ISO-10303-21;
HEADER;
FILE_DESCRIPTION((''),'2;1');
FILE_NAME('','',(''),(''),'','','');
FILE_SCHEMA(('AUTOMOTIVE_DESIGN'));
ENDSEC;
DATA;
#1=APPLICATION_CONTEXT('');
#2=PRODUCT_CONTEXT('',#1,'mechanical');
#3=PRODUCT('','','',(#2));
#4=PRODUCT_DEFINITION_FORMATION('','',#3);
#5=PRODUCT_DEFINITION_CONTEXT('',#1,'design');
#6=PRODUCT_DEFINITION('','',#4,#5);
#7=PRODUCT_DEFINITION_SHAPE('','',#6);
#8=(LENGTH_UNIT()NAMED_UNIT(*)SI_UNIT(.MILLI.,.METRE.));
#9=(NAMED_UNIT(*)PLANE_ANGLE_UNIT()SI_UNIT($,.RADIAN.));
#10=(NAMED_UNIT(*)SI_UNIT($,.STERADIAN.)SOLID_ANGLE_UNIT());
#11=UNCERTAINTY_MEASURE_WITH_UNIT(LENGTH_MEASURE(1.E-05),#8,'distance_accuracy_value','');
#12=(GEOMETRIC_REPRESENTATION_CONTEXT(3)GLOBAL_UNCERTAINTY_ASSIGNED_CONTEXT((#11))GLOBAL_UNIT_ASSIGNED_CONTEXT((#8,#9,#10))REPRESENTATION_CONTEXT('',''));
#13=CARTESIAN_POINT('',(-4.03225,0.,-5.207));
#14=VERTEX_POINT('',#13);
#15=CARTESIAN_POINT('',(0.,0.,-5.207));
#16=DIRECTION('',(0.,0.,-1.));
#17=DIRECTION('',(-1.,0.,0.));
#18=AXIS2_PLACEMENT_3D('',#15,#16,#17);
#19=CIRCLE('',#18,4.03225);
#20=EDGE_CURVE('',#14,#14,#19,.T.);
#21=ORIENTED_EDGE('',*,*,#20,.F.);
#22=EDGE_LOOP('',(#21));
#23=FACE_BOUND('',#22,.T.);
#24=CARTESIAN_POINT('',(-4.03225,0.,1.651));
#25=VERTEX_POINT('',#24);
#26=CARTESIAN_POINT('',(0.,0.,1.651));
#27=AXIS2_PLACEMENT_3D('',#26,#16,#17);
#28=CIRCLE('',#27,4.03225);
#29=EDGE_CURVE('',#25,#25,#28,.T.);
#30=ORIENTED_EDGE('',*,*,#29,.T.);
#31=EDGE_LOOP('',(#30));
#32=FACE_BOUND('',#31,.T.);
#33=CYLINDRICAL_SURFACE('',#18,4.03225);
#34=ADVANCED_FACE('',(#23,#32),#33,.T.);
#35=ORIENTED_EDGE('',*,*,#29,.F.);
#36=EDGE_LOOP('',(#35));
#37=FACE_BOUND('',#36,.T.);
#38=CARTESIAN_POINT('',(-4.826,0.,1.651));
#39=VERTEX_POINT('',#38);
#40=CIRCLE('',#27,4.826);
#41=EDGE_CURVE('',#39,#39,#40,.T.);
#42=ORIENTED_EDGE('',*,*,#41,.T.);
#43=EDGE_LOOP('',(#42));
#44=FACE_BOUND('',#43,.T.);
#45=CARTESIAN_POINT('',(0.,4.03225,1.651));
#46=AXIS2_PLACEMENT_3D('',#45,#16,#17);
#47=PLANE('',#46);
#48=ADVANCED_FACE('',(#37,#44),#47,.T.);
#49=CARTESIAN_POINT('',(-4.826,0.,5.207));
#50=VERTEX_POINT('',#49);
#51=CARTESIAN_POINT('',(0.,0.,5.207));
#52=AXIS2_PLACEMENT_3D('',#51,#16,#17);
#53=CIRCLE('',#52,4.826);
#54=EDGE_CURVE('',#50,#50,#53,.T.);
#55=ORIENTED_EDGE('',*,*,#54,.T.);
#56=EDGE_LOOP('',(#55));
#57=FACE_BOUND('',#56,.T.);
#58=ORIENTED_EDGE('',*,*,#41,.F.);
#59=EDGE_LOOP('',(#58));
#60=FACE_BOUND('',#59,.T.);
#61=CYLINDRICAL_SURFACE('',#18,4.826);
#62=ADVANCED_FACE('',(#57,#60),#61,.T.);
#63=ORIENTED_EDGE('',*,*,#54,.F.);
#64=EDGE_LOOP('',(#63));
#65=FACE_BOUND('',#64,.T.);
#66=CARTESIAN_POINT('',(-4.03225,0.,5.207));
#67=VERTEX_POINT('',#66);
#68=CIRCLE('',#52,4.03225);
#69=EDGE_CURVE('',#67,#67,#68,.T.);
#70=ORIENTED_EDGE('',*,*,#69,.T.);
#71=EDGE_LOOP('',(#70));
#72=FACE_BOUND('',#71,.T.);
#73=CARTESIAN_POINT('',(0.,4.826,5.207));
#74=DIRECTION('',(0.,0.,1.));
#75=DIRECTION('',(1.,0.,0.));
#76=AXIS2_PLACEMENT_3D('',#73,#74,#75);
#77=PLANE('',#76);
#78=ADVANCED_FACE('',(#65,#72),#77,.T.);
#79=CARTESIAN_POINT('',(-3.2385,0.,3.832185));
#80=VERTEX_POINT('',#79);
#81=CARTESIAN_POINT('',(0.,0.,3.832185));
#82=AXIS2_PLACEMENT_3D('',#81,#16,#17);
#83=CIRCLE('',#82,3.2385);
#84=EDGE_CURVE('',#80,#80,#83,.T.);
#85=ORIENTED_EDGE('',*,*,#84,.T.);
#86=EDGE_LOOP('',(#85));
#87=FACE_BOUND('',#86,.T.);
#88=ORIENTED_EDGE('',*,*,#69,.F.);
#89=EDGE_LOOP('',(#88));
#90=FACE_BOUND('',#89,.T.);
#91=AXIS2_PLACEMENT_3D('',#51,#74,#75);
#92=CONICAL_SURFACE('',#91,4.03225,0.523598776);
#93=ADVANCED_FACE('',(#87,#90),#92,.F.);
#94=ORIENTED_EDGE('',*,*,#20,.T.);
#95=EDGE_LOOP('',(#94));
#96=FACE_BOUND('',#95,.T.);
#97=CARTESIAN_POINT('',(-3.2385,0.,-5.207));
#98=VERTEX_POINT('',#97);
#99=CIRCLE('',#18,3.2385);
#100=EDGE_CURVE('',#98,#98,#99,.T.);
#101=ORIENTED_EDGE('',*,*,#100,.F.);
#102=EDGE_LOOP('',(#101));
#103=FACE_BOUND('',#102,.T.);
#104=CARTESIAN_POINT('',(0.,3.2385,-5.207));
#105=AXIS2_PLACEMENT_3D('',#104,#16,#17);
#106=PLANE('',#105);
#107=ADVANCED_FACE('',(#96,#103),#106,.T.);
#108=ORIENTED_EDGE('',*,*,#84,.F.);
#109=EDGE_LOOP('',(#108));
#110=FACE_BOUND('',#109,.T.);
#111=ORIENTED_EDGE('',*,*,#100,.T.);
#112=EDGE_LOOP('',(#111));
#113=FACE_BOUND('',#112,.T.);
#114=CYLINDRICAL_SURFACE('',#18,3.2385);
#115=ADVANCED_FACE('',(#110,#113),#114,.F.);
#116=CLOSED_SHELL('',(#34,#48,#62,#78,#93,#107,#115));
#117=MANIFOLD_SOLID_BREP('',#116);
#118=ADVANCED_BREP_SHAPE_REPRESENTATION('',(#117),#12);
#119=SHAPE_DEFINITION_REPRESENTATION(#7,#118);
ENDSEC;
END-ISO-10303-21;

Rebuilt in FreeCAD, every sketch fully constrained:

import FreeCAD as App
import Part
import Sketcher

V = App.Vector
Q = App.Units.Quantity


def add_polygon(sketch, points):
    """Adds a closed chain of lines whose ends are joined by coincident constraints."""
    first, n = sketch.GeometryCount, len(points)
    for a, b in zip(points, points[1:] + points[:1]):
        sketch.addGeometry(Part.LineSegment(App.Vector(*a, 0), App.Vector(*b, 0)), False)
    for i in range(n):
        sketch.addConstraint(Sketcher.Constraint("Coincident", first + i, 2, first + (i + 1) % n, 1))

doc = App.newDocument("Part")
body = doc.addObject("PartDesign::Body", "Body")

# Sketch on YZ plane
sketch1 = doc.addObject("Sketcher::SketchObject", "Sketch")
body.addObject(sketch1)
sketch1.AttachmentSupport = (doc.YZ_Plane, [""])
sketch1.MapMode = "FlatFace"
add_polygon(sketch1, [(4.03225, 5.207), (3.2385, 3.832185), (3.2385, -5.207), (4.03225, -5.207), (4.03225, 1.651), (4.826, 1.651), (4.826, 5.207)])  # lines 0-6
sketch1.addConstraint(Sketcher.Constraint("Vertical", 1))
sketch1.addConstraint(Sketcher.Constraint("Horizontal", 2))
sketch1.addConstraint(Sketcher.Constraint("Vertical", 3))
sketch1.addConstraint(Sketcher.Constraint("Horizontal", 4))
sketch1.addConstraint(Sketcher.Constraint("Vertical", 5))
sketch1.addConstraint(Sketcher.Constraint("Horizontal", 6))
sketch1.addConstraint(Sketcher.Constraint("Symmetric", 2, 2, 6, 2, -1))
sketch1.addConstraint(Sketcher.Constraint("Equal", 2, 4))
sketch1.addConstraint(Sketcher.Constraint("Angle", 0, Q("-120 deg")))
sketch1.addConstraint(Sketcher.Constraint("DistanceY", 3, 1, 3, 2, Q("0.27 in")))
sketch1.addConstraint(Sketcher.Constraint("DistanceY", 5, 1, 5, 2, Q("0.14 in")))
sketch1.addConstraint(Sketcher.Constraint("DistanceX", 2, 1, 2, 2, Q("0.03125 in")))
sketch1.addConstraint(Sketcher.Constraint("DistanceX", -1, 1, 4, 2, Q("0.19 in")))
revolution = doc.addObject("PartDesign::Revolution", "Revolution")
body.addObject(revolution)
revolution.Profile = sketch1
revolution.ReferenceAxis = (sketch1, ["V_Axis"])
revolution.Angle = 360

doc.recompute()
